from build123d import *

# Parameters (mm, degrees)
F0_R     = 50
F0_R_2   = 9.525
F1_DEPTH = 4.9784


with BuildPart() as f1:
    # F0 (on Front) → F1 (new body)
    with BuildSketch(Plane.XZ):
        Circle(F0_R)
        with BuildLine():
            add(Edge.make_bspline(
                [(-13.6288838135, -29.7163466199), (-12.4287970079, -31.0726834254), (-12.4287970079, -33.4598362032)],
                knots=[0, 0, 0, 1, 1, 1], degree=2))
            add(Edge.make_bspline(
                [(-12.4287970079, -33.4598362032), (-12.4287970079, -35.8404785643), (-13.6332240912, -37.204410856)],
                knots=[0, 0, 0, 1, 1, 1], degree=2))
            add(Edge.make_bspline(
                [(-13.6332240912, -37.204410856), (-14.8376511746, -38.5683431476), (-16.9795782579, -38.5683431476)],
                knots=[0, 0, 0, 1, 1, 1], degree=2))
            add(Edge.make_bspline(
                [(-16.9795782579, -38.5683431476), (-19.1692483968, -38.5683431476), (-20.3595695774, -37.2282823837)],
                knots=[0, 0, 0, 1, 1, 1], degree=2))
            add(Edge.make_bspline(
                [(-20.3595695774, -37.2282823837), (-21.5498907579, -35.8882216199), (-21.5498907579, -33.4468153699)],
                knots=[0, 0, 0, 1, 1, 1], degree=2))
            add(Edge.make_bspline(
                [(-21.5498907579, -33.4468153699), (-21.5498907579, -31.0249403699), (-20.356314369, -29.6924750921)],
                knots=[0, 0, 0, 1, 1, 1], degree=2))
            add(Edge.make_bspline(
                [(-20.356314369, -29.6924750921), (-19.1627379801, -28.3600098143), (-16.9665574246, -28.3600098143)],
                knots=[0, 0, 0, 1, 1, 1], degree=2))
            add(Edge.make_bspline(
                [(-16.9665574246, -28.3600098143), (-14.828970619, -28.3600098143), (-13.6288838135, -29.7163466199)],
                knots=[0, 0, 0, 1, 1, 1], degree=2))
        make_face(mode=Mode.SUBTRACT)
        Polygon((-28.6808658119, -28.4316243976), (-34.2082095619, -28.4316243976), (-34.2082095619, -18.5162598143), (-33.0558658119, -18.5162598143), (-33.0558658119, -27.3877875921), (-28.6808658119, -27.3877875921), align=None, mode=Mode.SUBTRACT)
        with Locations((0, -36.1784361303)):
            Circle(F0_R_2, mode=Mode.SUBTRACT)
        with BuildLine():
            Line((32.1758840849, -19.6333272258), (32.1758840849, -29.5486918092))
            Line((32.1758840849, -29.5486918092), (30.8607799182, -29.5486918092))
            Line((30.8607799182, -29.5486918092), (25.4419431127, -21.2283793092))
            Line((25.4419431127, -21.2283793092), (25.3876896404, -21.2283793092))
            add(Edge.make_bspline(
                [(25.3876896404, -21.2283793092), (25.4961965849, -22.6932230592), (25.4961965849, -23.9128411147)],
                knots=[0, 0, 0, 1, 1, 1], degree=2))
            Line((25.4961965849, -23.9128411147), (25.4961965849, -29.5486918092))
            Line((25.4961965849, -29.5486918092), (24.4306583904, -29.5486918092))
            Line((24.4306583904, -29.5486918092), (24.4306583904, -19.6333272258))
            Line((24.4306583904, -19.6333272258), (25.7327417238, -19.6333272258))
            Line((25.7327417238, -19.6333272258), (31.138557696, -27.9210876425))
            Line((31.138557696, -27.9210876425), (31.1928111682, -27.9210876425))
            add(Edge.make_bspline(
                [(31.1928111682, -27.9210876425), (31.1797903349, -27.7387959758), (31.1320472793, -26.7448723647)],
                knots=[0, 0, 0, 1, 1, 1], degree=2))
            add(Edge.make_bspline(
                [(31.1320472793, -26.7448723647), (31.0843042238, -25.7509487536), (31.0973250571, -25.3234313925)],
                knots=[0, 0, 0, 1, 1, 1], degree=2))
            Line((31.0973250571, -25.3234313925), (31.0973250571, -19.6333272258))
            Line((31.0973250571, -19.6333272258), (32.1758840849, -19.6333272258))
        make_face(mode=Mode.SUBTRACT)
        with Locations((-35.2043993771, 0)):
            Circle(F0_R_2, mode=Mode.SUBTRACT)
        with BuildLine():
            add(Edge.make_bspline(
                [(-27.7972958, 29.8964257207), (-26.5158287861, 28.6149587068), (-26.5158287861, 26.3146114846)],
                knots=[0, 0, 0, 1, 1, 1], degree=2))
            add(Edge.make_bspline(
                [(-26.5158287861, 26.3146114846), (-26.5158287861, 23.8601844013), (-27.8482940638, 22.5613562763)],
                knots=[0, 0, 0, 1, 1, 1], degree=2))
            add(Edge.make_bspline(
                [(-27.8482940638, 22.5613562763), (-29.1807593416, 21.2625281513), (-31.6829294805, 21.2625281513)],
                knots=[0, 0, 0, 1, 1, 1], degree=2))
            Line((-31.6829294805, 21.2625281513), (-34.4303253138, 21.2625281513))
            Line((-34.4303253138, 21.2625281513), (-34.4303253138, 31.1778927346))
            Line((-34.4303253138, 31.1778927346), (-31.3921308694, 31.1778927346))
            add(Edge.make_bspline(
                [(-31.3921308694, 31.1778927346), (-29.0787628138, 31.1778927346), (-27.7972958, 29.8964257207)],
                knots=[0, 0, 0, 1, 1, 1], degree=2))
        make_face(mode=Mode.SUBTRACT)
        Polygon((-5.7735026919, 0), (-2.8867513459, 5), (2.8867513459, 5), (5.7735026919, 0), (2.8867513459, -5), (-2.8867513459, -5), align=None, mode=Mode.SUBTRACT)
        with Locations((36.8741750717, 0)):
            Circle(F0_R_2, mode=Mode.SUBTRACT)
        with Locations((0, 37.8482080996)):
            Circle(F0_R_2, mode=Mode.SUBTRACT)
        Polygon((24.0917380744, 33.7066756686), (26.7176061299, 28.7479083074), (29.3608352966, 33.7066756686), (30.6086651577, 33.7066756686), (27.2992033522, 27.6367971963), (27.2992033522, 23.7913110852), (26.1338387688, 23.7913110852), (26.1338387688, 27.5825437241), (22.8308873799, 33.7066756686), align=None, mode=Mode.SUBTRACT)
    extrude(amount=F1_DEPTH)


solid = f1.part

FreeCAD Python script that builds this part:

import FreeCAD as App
import Part
import Sketcher
from FreeCAD import Vector
Q = App.Units.Quantity

doc = App.newDocument("Part")
body = doc.addObject("PartDesign::Body", "Body")

# Sketch on XZ plane
sketch1 = doc.addObject("Sketcher::SketchObject", "Sketch")
body.addObject(sketch1)
sketch1.AttachmentSupport = (doc.XZ_Plane, [""])
sketch1.MapMode = "FlatFace"
sketch1.addGeometry([
    Part.Circle(Vector(0, 0, 0), Vector(0, 0, 1), 50),  # 0
    Part.LineSegment(Vector(-28.680866, -27.387788, 0), Vector(-28.680866, -28.431624, 0)),  # 1
    Part.LineSegment(Vector(-28.680866, -28.431624, 0), Vector(-34.20821, -28.431624, 0)),  # 2
    Part.LineSegment(Vector(-34.20821, -28.431624, 0), Vector(-34.20821, -18.51626, 0)),  # 3
    Part.LineSegment(Vector(-34.20821, -18.51626, 0), Vector(-33.055866, -18.51626, 0)),  # 4
    Part.LineSegment(Vector(-33.055866, -18.51626, 0), Vector(-33.055866, -27.387788, 0)),  # 5
    Part.LineSegment(Vector(-33.055866, -27.387788, 0), Vector(-28.680866, -27.387788, 0)),  # 6
    Part.Circle(Vector(0, -36.178436, 0), Vector(0, 0, 1), 9.525),  # 7
    Part.BSplineCurve([Vector(-20.35957, -37.228282, 0), Vector(-21.549891, -35.888222, 0), Vector(-21.549891, -31.02494, 0), Vector(-19.162738, -28.36001, 0), Vector(-14.828971, -28.36001, 0), Vector(-13.628884, -29.716347, 0)], [3, 1, 1, 1, 3], [0, 1, 1.992, 2.984, 3.949533597], False, 2, [1, 1, 1, 1, 1, 1], False),  # 8
    Part.BSplineCurve([Vector(-13.628884, -29.716347, 0), Vector(-12.428797, -31.072683, 0), Vector(-12.428797, -35.840479, 0), Vector(-13.633224, -37.204411, 0)], [3, 1, 3], [0, 1, 1.997272727], False, 2, [1, 1, 1, 1], False),  # 9
    Part.BSplineCurve([Vector(-13.633224, -37.204411, 0), Vector(-14.837651, -38.568343, 0), Vector(-19.169248, -38.568343, 0), Vector(-20.35957, -37.228282, 0)], [3, 1, 3], [0, 1, 2.022289767], False, 2, [1, 1, 1, 1], False),  # 10
    Part.Circle(Vector(-35.204399, 0, 0), Vector(0, 0, 1), 9.525),  # 11
    Part.LineSegment(Vector(-2.886751, -5, 0), Vector(-5.773503, 0, 0)),  # 12
    Part.LineSegment(Vector(-5.773503, 0, 0), Vector(-2.886751, 5, 0)),  # 13
    Part.LineSegment(Vector(-2.886751, 5, 0), Vector(2.886751, 5, 0)),  # 14
    Part.LineSegment(Vector(2.886751, 5, 0), Vector(5.773503, 0, 0)),  # 15
    Part.LineSegment(Vector(5.773503, 0, 0), Vector(2.886751, -5, 0)),  # 16
    Part.LineSegment(Vector(2.886751, -5, 0), Vector(-2.886751, -5, 0)),  # 17
    Part.LineSegment(Vector(31.097325, -19.633327, 0), Vector(32.175884, -19.633327, 0)),  # 18
    Part.LineSegment(Vector(32.175884, -19.633327, 0), Vector(32.175884, -29.548692, 0)),  # 19
    Part.LineSegment(Vector(32.175884, -29.548692, 0), Vector(30.86078, -29.548692, 0)),  # 20
    Part.LineSegment(Vector(30.86078, -29.548692, 0), Vector(25.441943, -21.228379, 0)),  # 21
    Part.LineSegment(Vector(25.441943, -21.228379, 0), Vector(25.38769, -21.228379, 0)),  # 22
    Part.BSplineCurve([Vector(25.38769, -21.228379, 0), Vector(25.496197, -22.693223, 0), Vector(25.496197, -23.912841, 0)], [3, 3], [0, 1], False, 2, [1, 1, 1], False),  # 23
    Part.LineSegment(Vector(25.496197, -23.912841, 0), Vector(25.496197, -29.548692, 0)),  # 24
    Part.LineSegment(Vector(25.496197, -29.548692, 0), Vector(24.430658, -29.548692, 0)),  # 25
    Part.LineSegment(Vector(24.430658, -29.548692, 0), Vector(24.430658, -19.633327, 0)),  # 26
    Part.LineSegment(Vector(24.430658, -19.633327, 0), Vector(25.732742, -19.633327, 0)),  # 27
    Part.LineSegment(Vector(25.732742, -19.633327, 0), Vector(31.138558, -27.921088, 0)),  # 28
    Part.LineSegment(Vector(31.138558, -27.921088, 0), Vector(31.192811, -27.921088, 0)),  # 29
    Part.BSplineCurve([Vector(31.192811, -27.921088, 0), Vector(31.17979, -27.738796, 0), Vector(31.132047, -26.744872, 0)], [3, 3], [0, 1], False, 2, [1, 1, 1], False),  # 30
    Part.BSplineCurve([Vector(31.132047, -26.744872, 0), Vector(31.084304, -25.750949, 0), Vector(31.097325, -25.323431, 0)], [3, 3], [0, 1], False, 2, [1, 1, 1], False),  # 31
    Part.LineSegment(Vector(31.097325, -25.323431, 0), Vector(31.097325, -19.633327, 0)),  # 32
    Part.Circle(Vector(36.874175, 0, 0), Vector(0, 0, 1), 9.525),  # 33
    Part.BSplineCurve([Vector(-31.392131, 31.177893, 0), Vector(-29.078763, 31.177893, 0), Vector(-27.797296, 29.896426, 0)], [3, 3], [0, 1], False, 2, [1, 1, 1], False),  # 34
    Part.BSplineCurve([Vector(-27.797296, 29.896426, 0), Vector(-26.515829, 28.614959, 0), Vector(-26.515829, 23.860184, 0), Vector(-27.848294, 22.561356, 0)], [3, 1, 3], [0, 1, 2.066981132], False, 2, [1, 1, 1, 1], False),  # 35
    Part.BSplineCurve([Vector(-27.848294, 22.561356, 0), Vector(-29.180759, 21.262528, 0), Vector(-31.682929, 21.262528, 0)], [3, 3], [0, 1], False, 2, [1, 1, 1], False),  # 36
    Part.LineSegment(Vector(-31.682929, 21.262528, 0), Vector(-34.430325, 21.262528, 0)),  # 37
    Part.LineSegment(Vector(-34.430325, 21.262528, 0), Vector(-34.430325, 31.177893, 0)),  # 38
    Part.LineSegment(Vector(-34.430325, 31.177893, 0), Vector(-31.392131, 31.177893, 0)),  # 39
    Part.Circle(Vector(0, 37.848208, 0), Vector(0, 0, 1), 9.525),  # 40
    Part.LineSegment(Vector(22.830887, 33.706676, 0), Vector(24.091738, 33.706676, 0)),  # 41
    Part.LineSegment(Vector(24.091738, 33.706676, 0), Vector(26.717606, 28.747908, 0)),  # 42
    Part.LineSegment(Vector(26.717606, 28.747908, 0), Vector(29.360835, 33.706676, 0)),  # 43
    Part.LineSegment(Vector(29.360835, 33.706676, 0), Vector(30.608665, 33.706676, 0)),  # 44
    Part.LineSegment(Vector(30.608665, 33.706676, 0), Vector(27.299203, 27.636797, 0)),  # 45
    Part.LineSegment(Vector(27.299203, 27.636797, 0), Vector(27.299203, 23.791311, 0)),  # 46
    Part.LineSegment(Vector(27.299203, 23.791311, 0), Vector(26.133839, 23.791311, 0)),  # 47
    Part.LineSegment(Vector(26.133839, 23.791311, 0), Vector(26.133839, 27.582544, 0)),  # 48
    Part.LineSegment(Vector(26.133839, 27.582544, 0), Vector(22.830887, 33.706676, 0)),  # 49
], False)
sketch1.addConstraint([
    Sketcher.Constraint("Block", 8),
    Sketcher.Constraint("Block", 9),
    Sketcher.Constraint("Block", 10),
    Sketcher.Constraint("Block", 23),
    Sketcher.Constraint("Block", 30),
    Sketcher.Constraint("Block", 31),
    Sketcher.Constraint("Block", 34),
    Sketcher.Constraint("Block", 35),
    Sketcher.Constraint("Block", 36),
    Sketcher.Constraint("Coincident", 1, 2, 2, 1),
    Sketcher.Constraint("Coincident", 2, 2, 3, 1),
    Sketcher.Constraint("Coincident", 3, 2, 4, 1),
    Sketcher.Constraint("Coincident", 4, 2, 5, 1),
    Sketcher.Constraint("Coincident", 5, 2, 6, 1),
    Sketcher.Constraint("Coincident", 6, 2, 1, 1),
    Sketcher.Constraint("Coincident", 12, 2, 13, 1),
    Sketcher.Constraint("Coincident", 13, 2, 14, 1),
    Sketcher.Constraint("Coincident", 14, 2, 15, 1),
    Sketcher.Constraint("Coincident", 15, 2, 16, 1),
    Sketcher.Constraint("Coincident", 16, 2, 17, 1),
    Sketcher.Constraint("Coincident", 17, 2, 12, 1),
    Sketcher.Constraint("Coincident", 18, 2, 19, 1),
    Sketcher.Constraint("Coincident", 19, 2, 20, 1),
    Sketcher.Constraint("Coincident", 20, 2, 21, 1),
    Sketcher.Constraint("Coincident", 21, 2, 22, 1),
    Sketcher.Constraint("Coincident", 22, 2, 23, 1),
    Sketcher.Constraint("Coincident", 23, 2, 24, 1),
    Sketcher.Constraint("Coincident", 24, 2, 25, 1),
    Sketcher.Constraint("Coincident", 25, 2, 26, 1),
    Sketcher.Constraint("Coincident", 26, 2, 27, 1),
    Sketcher.Constraint("Coincident", 27, 2, 28, 1),
    Sketcher.Constraint("Coincident", 28, 2, 29, 1),
    Sketcher.Constraint("Coincident", 29, 2, 30, 1),
    Sketcher.Constraint("Coincident", 31, 2, 32, 1),
    Sketcher.Constraint("Coincident", 32, 2, 18, 1),
    Sketcher.Constraint("Coincident", 36, 2, 37, 1),
    Sketcher.Constraint("Coincident", 37, 2, 38, 1),
    Sketcher.Constraint("Coincident", 38, 2, 39, 1),
    Sketcher.Constraint("Coincident", 39, 2, 34, 1),
    Sketcher.Constraint("Coincident", 41, 2, 42, 1),
    Sketcher.Constraint("Coincident", 42, 2, 43, 1),
    Sketcher.Constraint("Coincident", 43, 2, 44, 1),
    Sketcher.Constraint("Coincident", 44, 2, 45, 1),
    Sketcher.Constraint("Coincident", 45, 2, 46, 1),
    Sketcher.Constraint("Coincident", 46, 2, 47, 1),
    Sketcher.Constraint("Coincident", 47, 2, 48, 1),
    Sketcher.Constraint("Coincident", 48, 2, 49, 1),
    Sketcher.Constraint("Coincident", 49, 2, 41, 1),
    Sketcher.Constraint("Vertical", 1),
    Sketcher.Constraint("Horizontal", 2),
    Sketcher.Constraint("Vertical", 3),
    Sketcher.Constraint("Horizontal", 4),
    Sketcher.Constraint("Vertical", 5),
    Sketcher.Constraint("Horizontal", 6),
    Sketcher.Constraint("Horizontal", 14),
    Sketcher.Constraint("Horizontal", 17),
    Sketcher.Constraint("Horizontal", 18),
    Sketcher.Constraint("Vertical", 19),
    Sketcher.Constraint("Horizontal", 20),
    Sketcher.Constraint("Horizontal", 22),
    Sketcher.Constraint("Vertical", 24),
    Sketcher.Constraint("Horizontal", 25),
    Sketcher.Constraint("Vertical", 26),
    Sketcher.Constraint("Horizontal", 27),
    Sketcher.Constraint("Horizontal", 29),
    Sketcher.Constraint("Vertical", 32),
    Sketcher.Constraint("Horizontal", 37),
    Sketcher.Constraint("Vertical", 38),
    Sketcher.Constraint("Horizontal", 39),
    Sketcher.Constraint("Horizontal", 41),
    Sketcher.Constraint("Horizontal", 44),
    Sketcher.Constraint("Vertical", 46),
    Sketcher.Constraint("Horizontal", 47),
    Sketcher.Constraint("Vertical", 48),
    Sketcher.Constraint("Coincident", 0, 3, -1, 1),
    Sketcher.Constraint("PointOnObject", 7, 3, -2),
    Sketcher.Constraint("PointOnObject", 11, 3, -1),
    Sketcher.Constraint("PointOnObject", 33, 3, -1),
    Sketcher.Constraint("PointOnObject", 40, 3, -2),
    Sketcher.Constraint("PointOnObject", 12, 2, -1),
    Sketcher.Constraint("PointOnObject", 15, 2, -1),
    Sketcher.Constraint("Diameter", 7, Q("0.75 in")),
    Sketcher.Constraint("Diameter", 11, Q("0.75 in")),
    Sketcher.Constraint("Diameter", 33, Q("0.75 in")),
    Sketcher.Constraint("Diameter", 40, Q("0.75 in")),
    Sketcher.Constraint("Diameter", 0, 100.0),
    Sketcher.Constraint("DistanceX", 11, 3, -1, 1, Q("1.386 in")),
    Sketcher.Constraint("DistanceX", 6, 1, 6, 2, 4.375),
    Sketcher.Constraint("DistanceX", -1, 1, 27, 2, Q("1.0131001 in")),
    Sketcher.Constraint("DistanceX", 18, 1, 18, 2, 1.078559),
    Sketcher.Constraint("DistanceX", 25, 2, 25, 1, 1.065538),
    Sketcher.Constraint("DistanceX", 41, 1, 41, 2, 1.260851),
    Sketcher.Constraint("DistanceX", 44, 1, 44, 2, 1.24783),
    Sketcher.Constraint("DistanceY", 24, 2, 24, 1, 5.635851),
    Sketcher.Constraint("DistanceY", -1, 1, 13, 2, 5.0),
    Sketcher.Constraint("DistanceY", 16, 2, -1, 1, 5.0),
    Sketcher.Constraint("DistanceX", 21, 2, 27, 2, 0.290799),
    Sketcher.Constraint("DistanceX", 25, 2, 28, 2, 6.707899),
    Sketcher.Constraint("DistanceY", 42, 2, 40, 3, 9.1003),
    Sketcher.Constraint("DistanceX", 41, 2, 47, 2, 2.042101),
    Sketcher.Constraint("Distance", 21, 9.92932),
    Sketcher.Constraint("Distance", 28, 9.894939),
    Sketcher.Constraint("Distance", 42, 5.61111),
    Sketcher.Constraint("Distance", 49, 6.958051),
    Sketcher.Constraint("DistanceX", 2, 2, 2, 1, 5.527344),
    Sketcher.Constraint("DistanceX", 14, 1, 14, 2, 5.773503),
    Sketcher.Constraint("DistanceX", 17, 2, 17, 1, 5.773503),
    Sketcher.Constraint("DistanceX", 20, 2, 20, 1, 1.315104),
    Sketcher.Constraint("DistanceX", 37, 2, 37, 1, 2.747396),
    Sketcher.Constraint("DistanceX", 47, 2, 47, 1, 1.165365),
    Sketcher.Constraint("DistanceY", 1, 2, 1, 1, 1.043837),
    Sketcher.Constraint("DistanceY", 3, 1, 3, 2, 9.915365),
    Sketcher.Constraint("DistanceY", 19, 2, 19, 1, 9.915365),
    Sketcher.Constraint("DistanceY", 46, 2, 46, 1, 3.845486),
    Sketcher.Constraint("DistanceY", 48, 1, 48, 2, 3.791233),
    Sketcher.Constraint("DistanceY", -1, 1, 40, 3, 37.848208),
    Sketcher.Constraint("DistanceX", 2, 2, -1, 1, 34.20821),
    Sketcher.Constraint("DistanceY", 3, 2, -1, 1, 18.51626),
    Sketcher.Constraint("DistanceX", 13, 2, -1, 1, 2.886751),
    Sketcher.Constraint("DistanceX", -1, 1, 16, 2, 2.886751),
    Sketcher.Constraint("DistanceX", -1, 1, 41, 2, 24.091738),
    Sketcher.Constraint("DistanceY", -1, 1, 46, 2, 23.791311),
    Sketcher.Constraint("DistanceY", 7, 3, 1, 2, 7.746812),
    Sketcher.Constraint("DistanceX", 1, 2, 33, 3, 65.555041),
    Sketcher.Constraint("DistanceX", 12, 2, 13, 2, 2.886751),
    Sketcher.Constraint("DistanceX", 14, 2, 15, 2, 2.886751),
    Sketcher.Constraint("DistanceX", 42, 2, 43, 2, 2.643229),
    Sketcher.Constraint("DistanceY", 45, 2, 43, 2, 6.069878),
])
pad1 = doc.addObject("PartDesign::Pad", "Pad")
body.addObject(pad1)
pad1.Profile = sketch1
pad1.Length = Q("0.196 in")

doc.recompute()
